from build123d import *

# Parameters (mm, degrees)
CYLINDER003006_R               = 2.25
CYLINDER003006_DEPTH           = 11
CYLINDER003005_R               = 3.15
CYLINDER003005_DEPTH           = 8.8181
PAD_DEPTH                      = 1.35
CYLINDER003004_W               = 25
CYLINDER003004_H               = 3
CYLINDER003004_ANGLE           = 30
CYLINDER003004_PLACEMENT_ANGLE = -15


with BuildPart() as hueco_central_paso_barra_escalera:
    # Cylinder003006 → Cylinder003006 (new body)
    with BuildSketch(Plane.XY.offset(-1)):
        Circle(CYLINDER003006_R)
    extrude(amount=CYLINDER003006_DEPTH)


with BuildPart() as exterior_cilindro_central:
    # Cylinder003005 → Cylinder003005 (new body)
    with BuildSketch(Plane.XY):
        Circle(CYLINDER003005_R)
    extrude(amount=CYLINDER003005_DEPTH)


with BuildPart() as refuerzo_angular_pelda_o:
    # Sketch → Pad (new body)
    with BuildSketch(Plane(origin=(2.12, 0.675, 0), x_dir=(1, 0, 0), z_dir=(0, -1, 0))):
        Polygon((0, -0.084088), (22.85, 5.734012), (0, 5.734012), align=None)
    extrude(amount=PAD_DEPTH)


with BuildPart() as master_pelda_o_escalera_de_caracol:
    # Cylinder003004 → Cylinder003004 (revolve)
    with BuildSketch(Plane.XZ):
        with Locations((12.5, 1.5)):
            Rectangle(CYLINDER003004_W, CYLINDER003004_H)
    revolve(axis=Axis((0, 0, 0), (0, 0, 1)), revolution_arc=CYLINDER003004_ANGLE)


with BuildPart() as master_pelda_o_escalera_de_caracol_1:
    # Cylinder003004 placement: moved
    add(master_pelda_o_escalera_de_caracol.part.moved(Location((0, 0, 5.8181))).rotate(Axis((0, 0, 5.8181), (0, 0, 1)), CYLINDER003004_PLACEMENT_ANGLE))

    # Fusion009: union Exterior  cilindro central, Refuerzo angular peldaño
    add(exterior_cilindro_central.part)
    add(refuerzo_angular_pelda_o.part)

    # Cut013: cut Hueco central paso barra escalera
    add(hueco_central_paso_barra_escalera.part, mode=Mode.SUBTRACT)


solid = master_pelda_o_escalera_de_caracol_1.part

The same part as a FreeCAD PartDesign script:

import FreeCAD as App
import Part
import Sketcher

V = App.Vector
Q = App.Units.Quantity

doc = App.newDocument("Part")
body = doc.addObject("PartDesign::Body", "Body")

sketch1 = doc.addObject("Sketcher::SketchObject", "Sketch")
body.addObject(sketch1)
sketch1.AttachmentSupport = (doc.XY_Plane, [""])
sketch1.MapMode = "FlatFace"
sketch1.AttachmentOffset = App.Placement(V(0, 0, -1), App.Rotation())
sketch1.addGeometry(Part.Circle(V(0, 0, 0), V(0, 0, 1), 2.2), False)
sketch1.addConstraint(Sketcher.Constraint("Coincident", 0, 3, -1, 1))
sketch1.addConstraint(Sketcher.Constraint("Diameter", 0, Q("4.5 mm")))
pad1 = doc.addObject("PartDesign::Pad", "Pad")
body.addObject(pad1)
pad1.Profile = sketch1
pad1.Length = 11
body2 = doc.addObject("PartDesign::Body", "Body001")

sketch2 = doc.addObject("Sketcher::SketchObject", "Sketch001")
body2.addObject(sketch2)
sketch2.AttachmentSupport = (doc.getObject("XY_Plane001"), [""])
sketch2.MapMode = "FlatFace"
sketch2.addGeometry(Part.Circle(V(0, 0, 0), V(0, 0, 1), 3.1), False)
sketch2.addConstraint(Sketcher.Constraint("Coincident", 0, 3, -1, 1))
sketch2.addConstraint(Sketcher.Constraint("Diameter", 0, Q("6.3 mm")))
pad2 = doc.addObject("PartDesign::Pad", "Pad001")
body2.addObject(pad2)
pad2.Profile = sketch2
pad2.Length = 8.8181
body3 = doc.addObject("PartDesign::Body", "Body002")

sketch3 = doc.addObject("Sketcher::SketchObject", "Sketch002")
body3.addObject(sketch3)
sketch3.AttachmentSupport = (doc.getObject("XZ_Plane002"), [""])
sketch3.MapMode = "FlatFace"
sketch3.AttachmentOffset = App.Placement(V(0, 0, -0.675), App.Rotation())
sketch3.addGeometry(Part.LineSegment(V(2, 0, 0), V(25, 6, 0)), False)
sketch3.addGeometry(Part.LineSegment(V(25, 6, 0), V(2, 6, 0)), False)
sketch3.addGeometry(Part.LineSegment(V(2, 6, 0), V(2, 0, 0)), False)
sketch3.addConstraint(Sketcher.Constraint("Coincident", 0, 2, 1, 1))
sketch3.addConstraint(Sketcher.Constraint("Coincident", 1, 2, 2, 1))
sketch3.addConstraint(Sketcher.Constraint("Coincident", 2, 2, 0, 1))
sketch3.addConstraint(Sketcher.Constraint("Horizontal", 1))
sketch3.addConstraint(Sketcher.Constraint("Vertical", 2))
sketch3.addConstraint(Sketcher.Constraint("DistanceX", 1, 2, 1, 1, Q("22.85 mm")))
sketch3.addConstraint(Sketcher.Constraint("DistanceX", -1, 1, 0, 2, Q("24.97 mm")))
sketch3.addConstraint(Sketcher.Constraint("DistanceY", 2, 2, 2, 1, Q("5.8181 mm")))
sketch3.addConstraint(Sketcher.Constraint("DistanceY", -1, 1, 0, 2, Q("5.734012 mm")))
pad3 = doc.addObject("PartDesign::Pad", "Pad002")
body3.addObject(pad3)
pad3.Profile = sketch3
pad3.Length = 1.35
body4 = doc.addObject("PartDesign::Body", "Body003")

sketch4 = doc.addObject("Sketcher::SketchObject", "Sketch003")
body4.addObject(sketch4)
sketch4.AttachmentSupport = (doc.getObject("XZ_Plane003"), [""])
sketch4.MapMode = "FlatFace"
sketch4.addGeometry(Part.LineSegment(V(0, 3, 0), V(0, 0, 0)), False)
sketch4.addGeometry(Part.LineSegment(V(0, 0, 0), V(25, 0, 0)), False)
sketch4.addGeometry(Part.LineSegment(V(25, 0, 0), V(25, 3, 0)), False)
sketch4.addGeometry(Part.LineSegment(V(25, 3, 0), V(0, 3, 0)), False)
sketch4.addConstraint(Sketcher.Constraint("Coincident", 0, 2, 1, 1))
sketch4.addConstraint(Sketcher.Constraint("Coincident", 1, 2, 2, 1))
sketch4.addConstraint(Sketcher.Constraint("Coincident", 2, 2, 3, 1))
sketch4.addConstraint(Sketcher.Constraint("Coincident", 3, 2, 0, 1))
sketch4.addConstraint(Sketcher.Constraint("Vertical", 0))
sketch4.addConstraint(Sketcher.Constraint("Horizontal", 1))
sketch4.addConstraint(Sketcher.Constraint("Vertical", 2))
sketch4.addConstraint(Sketcher.Constraint("Horizontal", 3))
sketch4.addConstraint(Sketcher.Constraint("Coincident", 0, 2, -1, 1))
sketch4.addConstraint(Sketcher.Constraint("DistanceX", 1, 1, 1, 2, Q("25 mm")))
sketch4.addConstraint(Sketcher.Constraint("DistanceY", 0, 2, 0, 1, Q("3 mm")))
revolution = doc.addObject("PartDesign::Revolution", "Revolution")
body4.addObject(revolution)
revolution.Profile = sketch4
revolution.ReferenceAxis = (sketch4, ["V_Axis"])
revolution.Angle = 30
body5 = doc.addObject("PartDesign::Body", "Body004")
doc.recompute()

body4.Placement = App.Placement(V(0, 0, 5.8181), App.Rotation(V(0, 0, 1), 345))
boolean = doc.addObject("PartDesign::Boolean", "Boolean")
body5.addObject(boolean)
boolean.Type = "Fuse"
boolean.addObjects([body4])
doc.recompute()

boolean2 = doc.addObject("PartDesign::Boolean", "Boolean001")
body5.addObject(boolean2)
boolean2.Type = "Fuse"
boolean2.addObjects([body2])
doc.recompute()

boolean3 = doc.addObject("PartDesign::Boolean", "Boolean002")
body5.addObject(boolean3)
boolean3.Type = "Fuse"
boolean3.addObjects([body3])
doc.recompute()

boolean4 = doc.addObject("PartDesign::Boolean", "Boolean003")
body5.addObject(boolean4)
boolean4.Type = "Cut"
boolean4.addObjects([body])

doc.recompute()
